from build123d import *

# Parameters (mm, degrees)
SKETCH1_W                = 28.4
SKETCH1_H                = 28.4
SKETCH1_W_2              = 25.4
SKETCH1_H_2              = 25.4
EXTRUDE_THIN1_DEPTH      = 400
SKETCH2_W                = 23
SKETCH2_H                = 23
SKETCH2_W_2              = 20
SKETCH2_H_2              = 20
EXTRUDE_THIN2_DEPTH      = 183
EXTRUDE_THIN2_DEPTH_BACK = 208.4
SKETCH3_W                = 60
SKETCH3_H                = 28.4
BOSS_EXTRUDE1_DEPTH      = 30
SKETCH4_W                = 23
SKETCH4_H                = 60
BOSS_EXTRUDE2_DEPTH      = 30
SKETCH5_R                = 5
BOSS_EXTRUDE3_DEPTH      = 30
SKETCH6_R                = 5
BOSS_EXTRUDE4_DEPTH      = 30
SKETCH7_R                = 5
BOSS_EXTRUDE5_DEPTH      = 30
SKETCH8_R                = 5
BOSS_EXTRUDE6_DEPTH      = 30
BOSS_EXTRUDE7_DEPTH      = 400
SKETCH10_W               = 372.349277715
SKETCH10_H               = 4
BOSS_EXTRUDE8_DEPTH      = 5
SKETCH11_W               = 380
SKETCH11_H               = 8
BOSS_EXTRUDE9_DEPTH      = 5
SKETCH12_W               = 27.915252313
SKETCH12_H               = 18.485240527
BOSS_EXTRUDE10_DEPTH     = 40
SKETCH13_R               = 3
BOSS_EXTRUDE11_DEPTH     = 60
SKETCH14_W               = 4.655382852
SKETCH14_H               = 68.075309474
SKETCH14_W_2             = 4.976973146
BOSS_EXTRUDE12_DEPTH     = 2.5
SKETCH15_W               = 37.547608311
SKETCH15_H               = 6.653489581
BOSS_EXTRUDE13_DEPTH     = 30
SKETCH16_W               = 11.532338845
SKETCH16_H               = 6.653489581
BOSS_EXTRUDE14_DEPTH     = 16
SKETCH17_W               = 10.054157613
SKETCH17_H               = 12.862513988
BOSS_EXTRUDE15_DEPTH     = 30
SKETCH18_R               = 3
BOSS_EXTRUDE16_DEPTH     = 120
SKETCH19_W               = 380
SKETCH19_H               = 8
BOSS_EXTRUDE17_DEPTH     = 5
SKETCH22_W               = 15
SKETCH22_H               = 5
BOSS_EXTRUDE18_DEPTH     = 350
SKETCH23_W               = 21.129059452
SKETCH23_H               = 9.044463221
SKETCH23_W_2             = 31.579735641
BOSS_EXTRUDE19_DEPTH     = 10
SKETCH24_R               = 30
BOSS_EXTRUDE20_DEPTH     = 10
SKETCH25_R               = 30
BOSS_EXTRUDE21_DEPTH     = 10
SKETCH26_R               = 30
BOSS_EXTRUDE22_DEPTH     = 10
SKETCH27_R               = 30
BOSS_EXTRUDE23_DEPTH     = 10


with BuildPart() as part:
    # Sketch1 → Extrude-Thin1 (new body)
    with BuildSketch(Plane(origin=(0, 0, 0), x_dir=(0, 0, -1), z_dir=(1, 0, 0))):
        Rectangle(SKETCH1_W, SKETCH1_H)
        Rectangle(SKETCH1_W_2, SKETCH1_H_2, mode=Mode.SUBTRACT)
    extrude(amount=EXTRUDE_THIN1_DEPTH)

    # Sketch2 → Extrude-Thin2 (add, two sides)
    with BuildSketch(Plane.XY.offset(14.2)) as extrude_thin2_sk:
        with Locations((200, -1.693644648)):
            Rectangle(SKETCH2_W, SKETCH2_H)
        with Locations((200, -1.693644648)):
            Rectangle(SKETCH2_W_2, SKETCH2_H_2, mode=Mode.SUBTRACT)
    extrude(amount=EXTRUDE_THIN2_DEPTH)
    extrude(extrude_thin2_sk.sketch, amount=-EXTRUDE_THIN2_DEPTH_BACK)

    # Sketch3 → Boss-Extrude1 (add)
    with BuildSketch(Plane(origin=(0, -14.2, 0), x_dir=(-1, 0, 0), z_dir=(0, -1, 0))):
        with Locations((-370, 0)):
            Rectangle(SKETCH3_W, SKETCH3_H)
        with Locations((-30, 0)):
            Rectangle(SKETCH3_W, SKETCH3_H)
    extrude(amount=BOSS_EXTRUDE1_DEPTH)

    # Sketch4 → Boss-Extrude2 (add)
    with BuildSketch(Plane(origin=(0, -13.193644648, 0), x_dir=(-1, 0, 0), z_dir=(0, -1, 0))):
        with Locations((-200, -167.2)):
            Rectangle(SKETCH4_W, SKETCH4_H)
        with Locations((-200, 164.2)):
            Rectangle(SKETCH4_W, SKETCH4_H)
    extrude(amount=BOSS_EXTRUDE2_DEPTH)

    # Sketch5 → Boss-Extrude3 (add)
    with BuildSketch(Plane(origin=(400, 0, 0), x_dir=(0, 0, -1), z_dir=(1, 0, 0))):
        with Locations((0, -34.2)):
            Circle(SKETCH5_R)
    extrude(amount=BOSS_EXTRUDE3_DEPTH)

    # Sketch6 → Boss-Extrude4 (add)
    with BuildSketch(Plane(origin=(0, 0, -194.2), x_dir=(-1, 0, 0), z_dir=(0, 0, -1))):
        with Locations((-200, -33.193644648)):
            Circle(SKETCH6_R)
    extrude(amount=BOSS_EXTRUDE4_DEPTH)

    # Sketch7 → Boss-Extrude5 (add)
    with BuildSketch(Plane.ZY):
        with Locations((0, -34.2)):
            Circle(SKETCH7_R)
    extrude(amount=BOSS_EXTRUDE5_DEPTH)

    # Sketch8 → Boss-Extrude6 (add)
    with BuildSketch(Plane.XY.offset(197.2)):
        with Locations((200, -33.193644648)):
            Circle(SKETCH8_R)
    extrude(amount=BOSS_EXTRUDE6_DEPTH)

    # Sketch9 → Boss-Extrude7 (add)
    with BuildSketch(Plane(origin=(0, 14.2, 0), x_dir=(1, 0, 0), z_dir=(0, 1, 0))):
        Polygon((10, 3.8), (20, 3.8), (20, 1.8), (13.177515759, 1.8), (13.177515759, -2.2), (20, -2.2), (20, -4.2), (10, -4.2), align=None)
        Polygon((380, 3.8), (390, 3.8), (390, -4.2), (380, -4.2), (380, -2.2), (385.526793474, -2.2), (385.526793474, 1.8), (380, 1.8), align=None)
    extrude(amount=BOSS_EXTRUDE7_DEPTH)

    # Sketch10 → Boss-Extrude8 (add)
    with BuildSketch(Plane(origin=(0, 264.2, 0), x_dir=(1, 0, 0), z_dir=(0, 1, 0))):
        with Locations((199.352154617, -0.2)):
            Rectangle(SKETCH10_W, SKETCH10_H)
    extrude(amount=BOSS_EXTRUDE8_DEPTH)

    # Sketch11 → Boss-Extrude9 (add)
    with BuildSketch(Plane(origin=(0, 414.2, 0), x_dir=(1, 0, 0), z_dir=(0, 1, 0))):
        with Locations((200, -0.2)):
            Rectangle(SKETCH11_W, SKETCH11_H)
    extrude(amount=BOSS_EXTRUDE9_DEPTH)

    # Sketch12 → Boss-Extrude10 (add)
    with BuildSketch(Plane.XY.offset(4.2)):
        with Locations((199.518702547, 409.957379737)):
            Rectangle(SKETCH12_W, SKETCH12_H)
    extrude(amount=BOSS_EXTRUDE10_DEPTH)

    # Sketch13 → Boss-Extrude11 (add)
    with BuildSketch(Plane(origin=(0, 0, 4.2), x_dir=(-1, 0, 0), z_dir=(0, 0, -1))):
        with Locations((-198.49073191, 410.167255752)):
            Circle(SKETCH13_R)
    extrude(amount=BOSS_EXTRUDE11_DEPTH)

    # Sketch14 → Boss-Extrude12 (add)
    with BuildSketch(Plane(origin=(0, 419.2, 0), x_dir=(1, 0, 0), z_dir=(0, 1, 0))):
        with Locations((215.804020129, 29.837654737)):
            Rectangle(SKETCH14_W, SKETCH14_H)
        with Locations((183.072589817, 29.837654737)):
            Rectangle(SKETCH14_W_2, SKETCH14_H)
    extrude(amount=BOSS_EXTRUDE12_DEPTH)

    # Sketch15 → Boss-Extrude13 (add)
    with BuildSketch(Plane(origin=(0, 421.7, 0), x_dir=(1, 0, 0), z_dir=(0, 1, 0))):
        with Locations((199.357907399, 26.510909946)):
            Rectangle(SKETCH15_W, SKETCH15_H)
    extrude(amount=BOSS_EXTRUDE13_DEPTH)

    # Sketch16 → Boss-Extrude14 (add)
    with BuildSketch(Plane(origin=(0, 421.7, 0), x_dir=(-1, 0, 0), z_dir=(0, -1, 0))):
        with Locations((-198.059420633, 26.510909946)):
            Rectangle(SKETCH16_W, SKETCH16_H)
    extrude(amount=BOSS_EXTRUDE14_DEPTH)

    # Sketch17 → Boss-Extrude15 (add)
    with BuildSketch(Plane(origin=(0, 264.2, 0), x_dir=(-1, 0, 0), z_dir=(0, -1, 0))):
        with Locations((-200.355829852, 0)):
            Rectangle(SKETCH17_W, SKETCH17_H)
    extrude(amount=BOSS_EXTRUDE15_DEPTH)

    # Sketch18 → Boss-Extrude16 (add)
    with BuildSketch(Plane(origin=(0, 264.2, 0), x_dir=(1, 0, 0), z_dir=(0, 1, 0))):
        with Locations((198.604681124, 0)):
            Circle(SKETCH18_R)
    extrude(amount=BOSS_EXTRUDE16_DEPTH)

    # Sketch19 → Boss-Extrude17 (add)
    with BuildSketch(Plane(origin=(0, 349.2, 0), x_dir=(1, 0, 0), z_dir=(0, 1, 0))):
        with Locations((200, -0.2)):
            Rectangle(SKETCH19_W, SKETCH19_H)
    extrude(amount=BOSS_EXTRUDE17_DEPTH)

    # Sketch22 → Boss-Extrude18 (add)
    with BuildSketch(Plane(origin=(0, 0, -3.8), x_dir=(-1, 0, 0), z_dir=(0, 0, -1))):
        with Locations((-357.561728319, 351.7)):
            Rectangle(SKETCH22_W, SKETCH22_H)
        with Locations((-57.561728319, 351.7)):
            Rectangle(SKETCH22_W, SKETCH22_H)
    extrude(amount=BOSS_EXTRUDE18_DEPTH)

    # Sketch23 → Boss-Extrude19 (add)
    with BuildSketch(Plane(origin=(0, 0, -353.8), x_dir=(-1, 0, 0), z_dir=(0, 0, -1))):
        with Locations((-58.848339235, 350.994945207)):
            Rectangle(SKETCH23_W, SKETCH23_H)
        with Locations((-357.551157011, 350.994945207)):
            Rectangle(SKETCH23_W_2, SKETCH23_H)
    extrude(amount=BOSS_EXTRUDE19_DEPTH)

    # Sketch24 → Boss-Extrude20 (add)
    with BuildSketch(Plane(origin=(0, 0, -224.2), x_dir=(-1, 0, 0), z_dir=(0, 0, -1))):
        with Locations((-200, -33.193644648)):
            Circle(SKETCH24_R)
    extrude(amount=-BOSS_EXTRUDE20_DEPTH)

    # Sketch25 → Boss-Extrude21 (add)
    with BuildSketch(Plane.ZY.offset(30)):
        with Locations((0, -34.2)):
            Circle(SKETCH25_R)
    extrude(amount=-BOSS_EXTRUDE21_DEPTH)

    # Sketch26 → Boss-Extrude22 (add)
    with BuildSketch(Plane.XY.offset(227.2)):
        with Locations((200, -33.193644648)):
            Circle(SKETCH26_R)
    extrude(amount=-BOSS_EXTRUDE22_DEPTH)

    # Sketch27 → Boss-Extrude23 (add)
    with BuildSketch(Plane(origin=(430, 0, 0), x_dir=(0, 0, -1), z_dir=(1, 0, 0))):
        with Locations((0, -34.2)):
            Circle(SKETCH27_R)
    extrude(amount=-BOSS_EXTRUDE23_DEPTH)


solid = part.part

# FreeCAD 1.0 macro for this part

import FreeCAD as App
import Part
import Sketcher
from FreeCAD import Vector


def add_polygon(sketch, points):
    """Adds a closed chain of lines whose ends are joined by coincident constraints."""
    first, n = sketch.GeometryCount, len(points)
    for a, b in zip(points, points[1:] + points[:1]):
        sketch.addGeometry(Part.LineSegment(App.Vector(*a, 0), App.Vector(*b, 0)), False)
    for i in range(n):
        sketch.addConstraint(Sketcher.Constraint("Coincident", first + i, 2, first + (i + 1) % n, 1))

doc = App.newDocument("Part")
body = doc.addObject("PartDesign::Body", "Body")

# Sketch on YZ plane
sketch1 = doc.addObject("Sketcher::SketchObject", "Sketch")
body.addObject(sketch1)
sketch1.AttachmentSupport = (doc.YZ_Plane, [""])
sketch1.MapMode = "FlatFace"
add_polygon(sketch1, [(14, 14), (-14, 14), (-14, -14), (14, -14)])  # lines 0-3
add_polygon(sketch1, [(-13, -13), (-13, 13), (13, 13), (13, -13)])  # lines 4-7
sketch1.addConstraint(Sketcher.Constraint("Horizontal", 0))
sketch1.addConstraint(Sketcher.Constraint("Vertical", 1))
sketch1.addConstraint(Sketcher.Constraint("Horizontal", 2))
sketch1.addConstraint(Sketcher.Constraint("Vertical", 3))
sketch1.addConstraint(Sketcher.Constraint("Vertical", 4))
sketch1.addConstraint(Sketcher.Constraint("Horizontal", 5))
sketch1.addConstraint(Sketcher.Constraint("Vertical", 6))
sketch1.addConstraint(Sketcher.Constraint("Horizontal", 7))
sketch1.addConstraint(Sketcher.Constraint("Symmetric", 0, 2, 2, 2, -1, 1))
sketch1.addConstraint(Sketcher.Constraint("Symmetric", 4, 2, 6, 2, -1, 1))
sketch1.addConstraint(Sketcher.Constraint("Equal", 2, 1))
sketch1.addConstraint(Sketcher.Constraint("Equal", 7, 4))
sketch1.addConstraint(Sketcher.Constraint("DistanceX", 0, 2, 0, 1, 28.4))
sketch1.addConstraint(Sketcher.Constraint("DistanceX", 5, 1, 5, 2, 25.4))
pad1 = doc.addObject("PartDesign::Pad", "Pad")
body.addObject(pad1)
pad1.Profile = sketch1
pad1.Length = 400

# Sketch on XY plane
sketch2 = doc.addObject("Sketcher::SketchObject", "Sketch001")
body.addObject(sketch2)
sketch2.AttachmentSupport = (doc.XY_Plane, [""])
sketch2.MapMode = "FlatFace"
sketch2.AttachmentOffset = App.Placement(Vector(0, 0, 14.2), App.Rotation())
add_polygon(sketch2, [(188, 10), (188, -13), (212, -13), (212, 10)])  # lines 0-3
add_polygon(sketch2, [(210, -12), (190, -12), (190, 8), (210, 8)])  # lines 4-7
sketch2.addConstraint(Sketcher.Constraint("Vertical", 0))
sketch2.addConstraint(Sketcher.Constraint("Horizontal", 1))
sketch2.addConstraint(Sketcher.Constraint("Vertical", 2))
sketch2.addConstraint(Sketcher.Constraint("Horizontal", 3))
sketch2.addConstraint(Sketcher.Constraint("Horizontal", 4))
sketch2.addConstraint(Sketcher.Constraint("Vertical", 5))
sketch2.addConstraint(Sketcher.Constraint("Horizontal", 6))
sketch2.addConstraint(Sketcher.Constraint("Vertical", 7))
sketch2.addConstraint(Sketcher.Constraint("Equal", 3, 0))
sketch2.addConstraint(Sketcher.Constraint("Equal", 6, 5))
sketch2.addConstraint(Sketcher.Constraint("DistanceX", 1, 1, 1, 2, 23.0))
sketch2.addConstraint(Sketcher.Constraint("DistanceX", 4, 2, 4, 1, 20.0))
sketch2.addConstraint(Sketcher.Constraint("DistanceX", -1, 1, 4, 2, 190.0))
sketch2.addConstraint(Sketcher.Constraint("DistanceX", -1, 1, 0, 2, 188.5))
sketch2.addConstraint(Sketcher.Constraint("DistanceY", 0, 2, 4, 2, 1.5))
sketch2.addConstraint(Sketcher.Constraint("DistanceY", 0, 2, -1, 1, 13.193645))
pad2 = doc.addObject("PartDesign::Pad", "Pad001")
body.addObject(pad2)
pad2.Profile = sketch2
pad2.Type = "TwoLengths"
pad2.Length = 183
pad2.Length2 = 208.4

# Sketch on XZ plane
sketch3 = doc.addObject("Sketcher::SketchObject", "Sketch002")
body.addObject(sketch3)
sketch3.AttachmentSupport = (doc.XZ_Plane, [""])
sketch3.MapMode = "FlatFace"
sketch3.AttachmentOffset = App.Placement(Vector(0, 0, 14.2), App.Rotation())
add_polygon(sketch3, [(400, -14), (400, 14), (340, 14), (340, -14)])  # lines 0-3
add_polygon(sketch3, [(60, -14), (60, 14), (0, 14), (0, -14)])  # lines 4-7
sketch3.addConstraint(Sketcher.Constraint("Vertical", 0))
sketch3.addConstraint(Sketcher.Constraint("Horizontal", 1))
sketch3.addConstraint(Sketcher.Constraint("Vertical", 2))
sketch3.addConstraint(Sketcher.Constraint("Horizontal", 3))
sketch3.addConstraint(Sketcher.Constraint("Vertical", 4))
sketch3.addConstraint(Sketcher.Constraint("Horizontal", 5))
sketch3.addConstraint(Sketcher.Constraint("Vertical", 6))
sketch3.addConstraint(Sketcher.Constraint("Horizontal", 7))
sketch3.addConstraint(Sketcher.Constraint("Symmetric", 5, 2, 6, 2, -1, 1))
sketch3.addConstraint(Sketcher.Constraint("Horizontal", 1, 2, 4, 2))
sketch3.addConstraint(Sketcher.Constraint("Horizontal", 3, 2, 6, 2))
sketch3.addConstraint(Sketcher.Constraint("Equal", 3, 5))
sketch3.addConstraint(Sketcher.Constraint("DistanceX", 1, 2, 1, 1, 60.0))
sketch3.addConstraint(Sketcher.Constraint("DistanceY", 0, 1, 0, 2, 28.4))
sketch3.addConstraint(Sketcher.Constraint("DistanceX", -1, 1, 0, 2, 400.0))
pad3 = doc.addObject("PartDesign::Pad", "Pad002")
body.addObject(pad3)
pad3.Profile = sketch3
pad3.Length = 30

# Sketch on XZ plane
sketch4 = doc.addObject("Sketcher::SketchObject", "Sketch003")
body.addObject(sketch4)
sketch4.AttachmentSupport = (doc.XZ_Plane, [""])
sketch4.MapMode = "FlatFace"
sketch4.AttachmentOffset = App.Placement(Vector(0, 0, 13.193645), App.Rotation())
add_polygon(sketch4, [(212, 137), (212, 197), (188, 197), (188, 137)])  # lines 0-3
add_polygon(sketch4, [(212, -194), (212, -134), (188, -134), (188, -194)])  # lines 4-7
sketch4.addConstraint(Sketcher.Constraint("Vertical", 0))
sketch4.addConstraint(Sketcher.Constraint("Horizontal", 1))
sketch4.addConstraint(Sketcher.Constraint("Vertical", 2))
sketch4.addConstraint(Sketcher.Constraint("Horizontal", 3))
sketch4.addConstraint(Sketcher.Constraint("Vertical", 4))
sketch4.addConstraint(Sketcher.Constraint("Horizontal", 5))
sketch4.addConstraint(Sketcher.Constraint("Vertical", 6))
sketch4.addConstraint(Sketcher.Constraint("Horizontal", 7))
sketch4.addConstraint(Sketcher.Constraint("Vertical", 3, 2, 4, 2))
sketch4.addConstraint(Sketcher.Constraint("Vertical", 2, 2, 5, 2))
sketch4.addConstraint(Sketcher.Constraint("Equal", 2, 4))
sketch4.addConstraint(Sketcher.Constraint("DistanceX", 1, 2, 1, 1, 23.0))
sketch4.addConstraint(Sketcher.Constraint("DistanceY", 0, 1, 0, 2, 60.0))
sketch4.addConstraint(Sketcher.Constraint("DistanceX", -1, 1, 0, 2, 211.5))
sketch4.addConstraint(Sketcher.Constraint("DistanceY", -1, 1, 0, 2, 197.2))
sketch4.addConstraint(Sketcher.Constraint("DistanceY", 4, 2, -1, 1, 134.2))
pad4 = doc.addObject("PartDesign::Pad", "Pad003")
body.addObject(pad4)
pad4.Profile = sketch4
pad4.Length = 30

# Sketch on YZ plane
sketch5 = doc.addObject("Sketcher::SketchObject", "Sketch004")
body.addObject(sketch5)
sketch5.AttachmentSupport = (doc.YZ_Plane, [""])
sketch5.MapMode = "FlatFace"
sketch5.AttachmentOffset = App.Placement(Vector(0, 0, 400), App.Rotation())
sketch5.addGeometry(Part.Circle(Vector(-34, 0, 0), Vector(0, 0, 1), 5), False)
sketch5.addConstraint(Sketcher.Constraint("PointOnObject", 0, 3, -1))
sketch5.addConstraint(Sketcher.Constraint("Diameter", 0, 10.0))
sketch5.addConstraint(Sketcher.Constraint("DistanceX", 0, 3, -1, 1, 34.2))
pad5 = doc.addObject("PartDesign::Pad", "Pad004")
body.addObject(pad5)
pad5.Profile = sketch5
pad5.Length = 30

# Sketch on XY plane
sketch6 = doc.addObject("Sketcher::SketchObject", "Sketch005")
body.addObject(sketch6)
sketch6.AttachmentSupport = (doc.XY_Plane, [""])
sketch6.MapMode = "FlatFace"
sketch6.AttachmentOffset = App.Placement(Vector(0, 0, -194.2), App.Rotation())
sketch6.addGeometry(Part.Circle(Vector(200, -33, 0), Vector(0, 0, 1), 5), False)
sketch6.addConstraint(Sketcher.Constraint("Diameter", 0, 10.0))
sketch6.addConstraint(Sketcher.Constraint("DistanceX", -1, 1, 0, 3, 200.0))
sketch6.addConstraint(Sketcher.Constraint("DistanceY", 0, 3, -1, 1, 33.193645))
pad6 = doc.addObject("PartDesign::Pad", "Pad005")
body.addObject(pad6)
pad6.Profile = sketch6
pad6.Length = 30
pad6.Reversed = True

# Sketch on YZ plane
sketch7 = doc.addObject("Sketcher::SketchObject", "Sketch006")
body.addObject(sketch7)
sketch7.AttachmentSupport = (doc.YZ_Plane, [""])
sketch7.MapMode = "FlatFace"
sketch7.addGeometry(Part.Circle(Vector(-34, 0, 0), Vector(0, 0, 1), 5), False)
sketch7.addConstraint(Sketcher.Constraint("PointOnObject", 0, 3, -1))
sketch7.addConstraint(Sketcher.Constraint("Diameter", 0, 10.0))
sketch7.addConstraint(Sketcher.Constraint("DistanceX", 0, 3, -1, 1, 34.2))
pad7 = doc.addObject("PartDesign::Pad", "Pad006")
body.addObject(pad7)
pad7.Profile = sketch7
pad7.Length = 30
pad7.Reversed = True

# Sketch on XY plane
sketch8 = doc.addObject("Sketcher::SketchObject", "Sketch007")
body.addObject(sketch8)
sketch8.AttachmentSupport = (doc.XY_Plane, [""])
sketch8.MapMode = "FlatFace"
sketch8.AttachmentOffset = App.Placement(Vector(0, 0, 197.2), App.Rotation())
sketch8.addGeometry(Part.Circle(Vector(200, -33, 0), Vector(0, 0, 1), 5), False)
sketch8.addConstraint(Sketcher.Constraint("Diameter", 0, 10.0))
sketch8.addConstraint(Sketcher.Constraint("DistanceX", -1, 1, 0, 3, 200.0))
sketch8.addConstraint(Sketcher.Constraint("DistanceY", 0, 3, -1, 1, 33.193645))
pad8 = doc.addObject("PartDesign::Pad", "Pad007")
body.addObject(pad8)
pad8.Profile = sketch8
pad8.Length = 30

# Sketch on XZ plane
sketch9 = doc.addObject("Sketcher::SketchObject", "Sketch008")
body.addObject(sketch9)
sketch9.AttachmentSupport = (doc.XZ_Plane, [""])
sketch9.MapMode = "FlatFace"
sketch9.AttachmentOffset = App.Placement(Vector(0, 0, -14.2), App.Rotation())
add_polygon(sketch9, [(20, -3.8), (10, -3.8), (10, 4.2), (20, 4.2), (20, 2.2), (13.2, 2.2), (13.2, -1.8), (20, -1.8)])  # lines 0-7
add_polygon(sketch9, [(390, -3.8), (380, -3.8), (380, -1.8), (385.5, -1.8), (385.5, 2.2), (380, 2.2), (380, 4.2), (390, 4.2)])  # lines 8-15
sketch9.addConstraint(Sketcher.Constraint("Horizontal", 0))
sketch9.addConstraint(Sketcher.Constraint("Vertical", 1))
sketch9.addConstraint(Sketcher.Constraint("Horizontal", 2))
sketch9.addConstraint(Sketcher.Constraint("Vertical", 3))
sketch9.addConstraint(Sketcher.Constraint("Horizontal", 4))
sketch9.addConstraint(Sketcher.Constraint("Vertical", 5))
sketch9.addConstraint(Sketcher.Constraint("Horizontal", 6))
sketch9.addConstraint(Sketcher.Constraint("Vertical", 7))
sketch9.addConstraint(Sketcher.Constraint("Horizontal", 8))
sketch9.addConstraint(Sketcher.Constraint("Vertical", 9))
sketch9.addConstraint(Sketcher.Constraint("Horizontal", 10))
sketch9.addConstraint(Sketcher.Constraint("Vertical", 11))
sketch9.addConstraint(Sketcher.Constraint("Horizontal", 12))
sketch9.addConstraint(Sketcher.Constraint("Vertical", 13))
sketch9.addConstraint(Sketcher.Constraint("Horizontal", 14))
sketch9.addConstraint(Sketcher.Constraint("Vertical", 15))
sketch9.addConstraint(Sketcher.Constraint("Horizontal", 7, 2, 8, 2))
sketch9.addConstraint(Sketcher.Constraint("Horizontal", 6, 2, 9, 2))
sketch9.addConstraint(Sketcher.Constraint("Horizontal", 4, 2, 11, 2))
sketch9.addConstraint(Sketcher.Constraint("Horizontal", 2, 2, 13, 2))
sketch9.addConstraint(Sketcher.Constraint("Vertical", 3, 2, 6, 2))
sketch9.addConstraint(Sketcher.Constraint("Vertical", 9, 2, 12, 2))
sketch9.addConstraint(Sketcher.Constraint("Equal", 2, 8))
sketch9.addConstraint(Sketcher.Constraint("Equal", 3, 7))
sketch9.addConstraint(Sketcher.Constraint("DistanceX", 0, 2, 0, 1, 10.0))
sketch9.addConstraint(Sketcher.Constraint("DistanceY", 1, 1, 1, 2, 8.0))
sketch9.addConstraint(Sketcher.Constraint("DistanceY", 3, 2, 3, 1, 2.0))
sketch9.addConstraint(Sketcher.Constraint("DistanceX", -1, 1, 0, 2, 10.0))
sketch9.addConstraint(Sketcher.Constraint("DistanceX", -1, 1, 8, 2, 380.0))
sketch9.addConstraint(Sketcher.Constraint("DistanceY", 0, 2, -1, 1, 3.8))
sketch9.addConstraint(Sketcher.Constraint("DistanceX", 4, 2, 4, 1, 6.822484))
sketch9.addConstraint(Sketcher.Constraint("DistanceX", 10, 1, 10, 2, 5.526793))
pad9 = doc.addObject("PartDesign::Pad", "Pad008")
body.addObject(pad9)
pad9.Profile = sketch9
pad9.Length = 400
pad9.Reversed = True

# Sketch on XZ plane
sketch10 = doc.addObject("Sketcher::SketchObject", "Sketch009")
body.addObject(sketch10)
sketch10.AttachmentSupport = (doc.XZ_Plane, [""])
sketch10.MapMode = "FlatFace"
sketch10.AttachmentOffset = App.Placement(Vector(0, 0, -264.2), App.Rotation())
add_polygon(sketch10, [(13.2, -1.8), (13.2, 2.2), (385.5, 2.2), (385.5, -1.8)])  # lines 0-3
sketch10.addConstraint(Sketcher.Constraint("Vertical", 0))
sketch10.addConstraint(Sketcher.Constraint("Horizontal", 1))
sketch10.addConstraint(Sketcher.Constraint("Vertical", 2))
sketch10.addConstraint(Sketcher.Constraint("Horizontal", 3))
sketch10.addConstraint(Sketcher.Constraint("DistanceY", 0, 1, 0, 2, 4.0))
sketch10.addConstraint(Sketcher.Constraint("DistanceY", -1, 1, 0, 2, 2.2))
sketch10.addConstraint(Sketcher.Constraint("DistanceX", 1, 1, 1, 2, 372.349278))
sketch10.addConstraint(Sketcher.Constraint("DistanceX", -1, 1, 0, 2, 13.177516))
pad10 = doc.addObject("PartDesign::Pad", "Pad009")
body.addObject(pad10)
pad10.Profile = sketch10
pad10.Length = 5
pad10.Reversed = True

# Sketch on XZ plane
sketch11 = doc.addObject("Sketcher::SketchObject", "Sketch010")
body.addObject(sketch11)
sketch11.AttachmentSupport = (doc.XZ_Plane, [""])
sketch11.MapMode = "FlatFace"
sketch11.AttachmentOffset = App.Placement(Vector(0, 0, -414.2), App.Rotation())
add_polygon(sketch11, [(10, -4), (10, 4), (390, 4), (390, -4)])  # lines 0-3
sketch11.addConstraint(Sketcher.Constraint("Vertical", 0))
sketch11.addConstraint(Sketcher.Constraint("Horizontal", 1))
sketch11.addConstraint(Sketcher.Constraint("Vertical", 2))
sketch11.addConstraint(Sketcher.Constraint("Horizontal", 3))
sketch11.addConstraint(Sketcher.Constraint("DistanceX", 1, 1, 1, 2, 380.0))
sketch11.addConstraint(Sketcher.Constraint("DistanceY", 0, 1, 0, 2, 8.0))
sketch11.addConstraint(Sketcher.Constraint("DistanceX", -1, 1, 0, 2, 10.0))
sketch11.addConstraint(Sketcher.Constraint("DistanceY", -1, 1, 0, 2, 4.2))
pad11 = doc.addObject("PartDesign::Pad", "Pad010")
body.addObject(pad11)
pad11.Profile = sketch11
pad11.Length = 5
pad11.Reversed = True

# Sketch on XY plane
sketch12 = doc.addObject("Sketcher::SketchObject", "Sketch011")
body.addObject(sketch12)
sketch12.AttachmentSupport = (doc.XY_Plane, [""])
sketch12.MapMode = "FlatFace"
sketch12.AttachmentOffset = App.Placement(Vector(0, 0, 4.2), App.Rotation())
add_polygon(sketch12, [(186, 419), (186, 401), (213, 401), (213, 419)])  # lines 0-3
sketch12.addConstraint(Sketcher.Constraint("Vertical", 0))
sketch12.addConstraint(Sketcher.Constraint("Horizontal", 1))
sketch12.addConstraint(Sketcher.Constraint("Vertical", 2))
sketch12.addConstraint(Sketcher.Constraint("Horizontal", 3))
sketch12.addConstraint(Sketcher.Constraint("DistanceY", -1, 1, 2, 2, 419.2))
sketch12.addConstraint(Sketcher.Constraint("DistanceY", 0, 2, 0, 1, 18.485241))
sketch12.addConstraint(Sketcher.Constraint("DistanceX", 1, 1, 1, 2, 27.915252))
sketch12.addConstraint(Sketcher.Constraint("DistanceX", -1, 1, 1, 2, 213.476329))
pad12 = doc.addObject("PartDesign::Pad", "Pad011")
body.addObject(pad12)
pad12.Profile = sketch12
pad12.Length = 40

# Sketch on XY plane
sketch13 = doc.addObject("Sketcher::SketchObject", "Sketch012")
body.addObject(sketch13)
sketch13.AttachmentSupport = (doc.XY_Plane, [""])
sketch13.MapMode = "FlatFace"
sketch13.AttachmentOffset = App.Placement(Vector(0, 0, 4.2), App.Rotation())
sketch13.addGeometry(Part.Circle(Vector(198.5, 410.2, 0), Vector(0, 0, 1), 3), False)
sketch13.addConstraint(Sketcher.Constraint("Diameter", 0, 6.0))
sketch13.addConstraint(Sketcher.Constraint("DistanceX", -1, 1, 0, 3, 198.490732))
sketch13.addConstraint(Sketcher.Constraint("DistanceY", -1, 1, 0, 3, 410.167256))
pad13 = doc.addObject("PartDesign::Pad", "Pad012")
body.addObject(pad13)
pad13.Profile = sketch13
pad13.Length = 60
pad13.Reversed = True

# Sketch on XZ plane
sketch14 = doc.addObject("Sketcher::SketchObject", "Sketch013")
body.addObject(sketch14)
sketch14.AttachmentSupport = (doc.XZ_Plane, [""])
sketch14.MapMode = "FlatFace"
sketch14.AttachmentOffset = App.Placement(Vector(0, 0, -419.2), App.Rotation())
add_polygon(sketch14, [(213.5, -63.9), (213.5, 4.2), (218.1, 4.2), (218.1, -63.9)])  # lines 0-3
add_polygon(sketch14, [(180.6, -63.9), (180.6, 4.2), (185.6, 4.2), (185.6, -63.9)])  # lines 4-7
sketch14.addConstraint(Sketcher.Constraint("Vertical", 0))
sketch14.addConstraint(Sketcher.Constraint("Horizontal", 1))
sketch14.addConstraint(Sketcher.Constraint("Vertical", 2))
sketch14.addConstraint(Sketcher.Constraint("Horizontal", 3))
sketch14.addConstraint(Sketcher.Constraint("Vertical", 4))
sketch14.addConstraint(Sketcher.Constraint("Horizontal", 5))
sketch14.addConstraint(Sketcher.Constraint("Vertical", 6))
sketch14.addConstraint(Sketcher.Constraint("Horizontal", 7))
sketch14.addConstraint(Sketcher.Constraint("Horizontal", 1, 2, 4, 2))
sketch14.addConstraint(Sketcher.Constraint("Horizontal", 3, 2, 6, 2))
sketch14.addConstraint(Sketcher.Constraint("DistanceY", -1, 1, 0, 2, 4.2))
sketch14.addConstraint(Sketcher.Constraint("DistanceY", 0, 1, 0, 2, 68.075309))
sketch14.addConstraint(Sketcher.Constraint("DistanceX", 1, 1, 1, 2, 4.655383))
sketch14.addConstraint(Sketcher.Constraint("DistanceX", 5, 1, 5, 2, 4.976973))
sketch14.addConstraint(Sketcher.Constraint("DistanceX", -1, 1, 0, 2, 213.476329))
sketch14.addConstraint(Sketcher.Constraint("DistanceX", 4, 2, 1, 2, 37.547608))
pad14 = doc.addObject("PartDesign::Pad", "Pad013")
body.addObject(pad14)
pad14.Profile = sketch14
pad14.Length = 2.5
pad14.Reversed = True

# Sketch on XZ plane
sketch15 = doc.addObject("Sketcher::SketchObject", "Sketch014")
body.addObject(sketch15)
sketch15.AttachmentSupport = (doc.XZ_Plane, [""])
sketch15.MapMode = "FlatFace"
sketch15.AttachmentOffset = App.Placement(Vector(0, 0, -421.7), App.Rotation())
add_polygon(sketch15, [(181, -30), (181, -23), (218, -23), (218, -30)])  # lines 0-3
sketch15.addConstraint(Sketcher.Constraint("Vertical", 0))
sketch15.addConstraint(Sketcher.Constraint("Horizontal", 1))
sketch15.addConstraint(Sketcher.Constraint("Vertical", 2))
sketch15.addConstraint(Sketcher.Constraint("Horizontal", 3))
sketch15.addConstraint(Sketcher.Constraint("DistanceX", 1, 1, 1, 2, 37.547608))
sketch15.addConstraint(Sketcher.Constraint("DistanceY", 0, 1, 0, 2, 6.65349))
sketch15.addConstraint(Sketcher.Constraint("DistanceX", -1, 1, 1, 2, 218.131712))
sketch15.addConstraint(Sketcher.Constraint("DistanceY", 0, 2, -1, 1, 23.184165))
pad15 = doc.addObject("PartDesign::Pad", "Pad014")
body.addObject(pad15)
pad15.Profile = sketch15
pad15.Length = 30
pad15.Reversed = True

# Sketch on XZ plane
sketch16 = doc.addObject("Sketcher::SketchObject", "Sketch015")
body.addObject(sketch16)
sketch16.AttachmentSupport = (doc.XZ_Plane, [""])
sketch16.MapMode = "FlatFace"
sketch16.AttachmentOffset = App.Placement(Vector(0, 0, -421.7), App.Rotation())
add_polygon(sketch16, [(204, -30), (204, -23), (192, -23), (192, -30)])  # lines 0-3
sketch16.addConstraint(Sketcher.Constraint("Vertical", 0))
sketch16.addConstraint(Sketcher.Constraint("Horizontal", 1))
sketch16.addConstraint(Sketcher.Constraint("Vertical", 2))
sketch16.addConstraint(Sketcher.Constraint("Horizontal", 3))
sketch16.addConstraint(Sketcher.Constraint("DistanceX", 1, 2, 1, 1, 11.532339))
sketch16.addConstraint(Sketcher.Constraint("DistanceY", 0, 1, 0, 2, 6.65349))
sketch16.addConstraint(Sketcher.Constraint("DistanceX", -1, 1, 0, 2, 203.82559))
sketch16.addConstraint(Sketcher.Constraint("DistanceY", 0, 2, -1, 1, 23.184165))
pad16 = doc.addObject("PartDesign::Pad", "Pad015")
body.addObject(pad16)
pad16.Profile = sketch16
pad16.Length = 16

# Sketch on XZ plane
sketch17 = doc.addObject("Sketcher::SketchObject", "Sketch016")
body.addObject(sketch17)
sketch17.AttachmentSupport = (doc.XZ_Plane, [""])
sketch17.MapMode = "FlatFace"
sketch17.AttachmentOffset = App.Placement(Vector(0, 0, -264.2), App.Rotation())
add_polygon(sketch17, [(205, -6), (205, 6), (195, 6), (195, -6)])  # lines 0-3
sketch17.addConstraint(Sketcher.Constraint("Vertical", 0))
sketch17.addConstraint(Sketcher.Constraint("Horizontal", 1))
sketch17.addConstraint(Sketcher.Constraint("Vertical", 2))
sketch17.addConstraint(Sketcher.Constraint("Horizontal", 3))
sketch17.addConstraint(Sketcher.Constraint("DistanceX", 1, 2, 1, 1, 10.054158))
sketch17.addConstraint(Sketcher.Constraint("DistanceY", 0, 1, 0, 2, 12.862514))
sketch17.addConstraint(Sketcher.Constraint("DistanceX", -1, 1, 0, 2, 205.382909))
sketch17.addConstraint(Sketcher.Constraint("DistanceY", -1, 1, 0, 2, 6.431257))
pad17 = doc.addObject("PartDesign::Pad", "Pad016")
body.addObject(pad17)
pad17.Profile = sketch17
pad17.Length = 30

# Sketch on XZ plane
sketch18 = doc.addObject("Sketcher::SketchObject", "Sketch017")
body.addObject(sketch18)
sketch18.AttachmentSupport = (doc.XZ_Plane, [""])
sketch18.MapMode = "FlatFace"
sketch18.AttachmentOffset = App.Placement(Vector(0, 0, -264.2), App.Rotation())
sketch18.addGeometry(Part.Circle(Vector(198.6, 0, 0), Vector(0, 0, 1), 3), False)
sketch18.addConstraint(Sketcher.Constraint("PointOnObject", 0, 3, -1))
sketch18.addConstraint(Sketcher.Constraint("Diameter", 0, 6.0))
sketch18.addConstraint(Sketcher.Constraint("DistanceX", -1, 1, 0, 3, 198.604681))
pad18 = doc.addObject("PartDesign::Pad", "Pad017")
body.addObject(pad18)
pad18.Profile = sketch18
pad18.Length = 120
pad18.Reversed = True

# Sketch on XZ plane
sketch19 = doc.addObject("Sketcher::SketchObject", "Sketch018")
body.addObject(sketch19)
sketch19.AttachmentSupport = (doc.XZ_Plane, [""])
sketch19.MapMode = "FlatFace"
sketch19.AttachmentOffset = App.Placement(Vector(0, 0, -349.2), App.Rotation())
add_polygon(sketch19, [(10, -4), (10, 4), (390, 4), (390, -4)])  # lines 0-3
sketch19.addConstraint(Sketcher.Constraint("Vertical", 0))
sketch19.addConstraint(Sketcher.Constraint("Horizontal", 1))
sketch19.addConstraint(Sketcher.Constraint("Vertical", 2))
sketch19.addConstraint(Sketcher.Constraint("Horizontal", 3))
sketch19.addConstraint(Sketcher.Constraint("DistanceX", 1, 1, 1, 2, 380.0))
sketch19.addConstraint(Sketcher.Constraint("DistanceY", 0, 1, 0, 2, 8.0))
sketch19.addConstraint(Sketcher.Constraint("DistanceX", -1, 1, 0, 2, 10.0))
sketch19.addConstraint(Sketcher.Constraint("DistanceY", -1, 1, 0, 2, 4.2))
pad19 = doc.addObject("PartDesign::Pad", "Pad018")
body.addObject(pad19)
pad19.Profile = sketch19
pad19.Length = 5
pad19.Reversed = True

# Sketch on XY plane
sketch20 = doc.addObject("Sketcher::SketchObject", "Sketch019")
body.addObject(sketch20)
sketch20.AttachmentSupport = (doc.XY_Plane, [""])
sketch20.MapMode = "FlatFace"
sketch20.AttachmentOffset = App.Placement(Vector(0, 0, -3.8), App.Rotation())
add_polygon(sketch20, [(365, 354), (365, 349), (350, 349), (350, 354)])  # lines 0-3
add_polygon(sketch20, [(65, 354), (65, 349), (50, 349), (50, 354)])  # lines 4-7
sketch20.addConstraint(Sketcher.Constraint("Vertical", 0))
sketch20.addConstraint(Sketcher.Constraint("Horizontal", 1))
sketch20.addConstraint(Sketcher.Constraint("Vertical", 2))
sketch20.addConstraint(Sketcher.Constraint("Horizontal", 3))
sketch20.addConstraint(Sketcher.Constraint("Vertical", 4))
sketch20.addConstraint(Sketcher.Constraint("Horizontal", 5))
sketch20.addConstraint(Sketcher.Constraint("Vertical", 6))
sketch20.addConstraint(Sketcher.Constraint("Horizontal", 7))
sketch20.addConstraint(Sketcher.Constraint("Horizontal", 1, 2, 4, 2))
sketch20.addConstraint(Sketcher.Constraint("Horizontal", 3, 2, 6, 2))
sketch20.addConstraint(Sketcher.Constraint("Equal", 3, 5))
sketch20.addConstraint(Sketcher.Constraint("DistanceX", 1, 2, 1, 1, 15.0))
sketch20.addConstraint(Sketcher.Constraint("DistanceY", 0, 2, 0, 1, 5.0))
sketch20.addConstraint(Sketcher.Constraint("DistanceX", 4, 2, 1, 2, 285.0))
sketch20.addConstraint(Sketcher.Constraint("DistanceY", -1, 1, 0, 2, 349.2))
sketch20.addConstraint(Sketcher.Constraint("DistanceX", -1, 1, 0, 2, 365.061728))
pad20 = doc.addObject("PartDesign::Pad", "Pad019")
body.addObject(pad20)
pad20.Profile = sketch20
pad20.Length = 350
pad20.Reversed = True

# Sketch on XY plane
sketch21 = doc.addObject("Sketcher::SketchObject", "Sketch020")
body.addObject(sketch21)
sketch21.AttachmentSupport = (doc.XY_Plane, [""])
sketch21.MapMode = "FlatFace"
sketch21.AttachmentOffset = App.Placement(Vector(0, 0, -353.8), App.Rotation())
add_polygon(sketch21, [(69, 356), (69, 346), (48, 346), (48, 356)])  # lines 0-3
add_polygon(sketch21, [(373, 356), (373, 346), (342, 346), (342, 356)])  # lines 4-7
sketch21.addConstraint(Sketcher.Constraint("Vertical", 0))
sketch21.addConstraint(Sketcher.Constraint("Horizontal", 1))
sketch21.addConstraint(Sketcher.Constraint("Vertical", 2))
sketch21.addConstraint(Sketcher.Constraint("Horizontal", 3))
sketch21.addConstraint(Sketcher.Constraint("Vertical", 4))
sketch21.addConstraint(Sketcher.Constraint("Horizontal", 5))
sketch21.addConstraint(Sketcher.Constraint("Vertical", 6))
sketch21.addConstraint(Sketcher.Constraint("Horizontal", 7))
sketch21.addConstraint(Sketcher.Constraint("Horizontal", 1, 2, 4, 2))
sketch21.addConstraint(Sketcher.Constraint("Horizontal", 3, 2, 6, 2))
sketch21.addConstraint(Sketcher.Constraint("DistanceX", 1, 2, 1, 1, 21.129059))
sketch21.addConstraint(Sketcher.Constraint("DistanceX", 5, 2, 5, 1, 31.579736))
sketch21.addConstraint(Sketcher.Constraint("DistanceY", 0, 2, 0, 1, 9.044463))
sketch21.addConstraint(Sketcher.Constraint("DistanceX", -1, 1, 0, 2, 69.412869))
sketch21.addConstraint(Sketcher.Constraint("DistanceX", -1, 1, 5, 2, 341.761289))
sketch21.addConstraint(Sketcher.Constraint("DistanceY", -1, 1, 0, 2, 346.472714))
pad21 = doc.addObject("PartDesign::Pad", "Pad020")
body.addObject(pad21)
pad21.Profile = sketch21
pad21.Length = 10
pad21.Reversed = True

# Sketch on XY plane
sketch22 = doc.addObject("Sketcher::SketchObject", "Sketch021")
body.addObject(sketch22)
sketch22.AttachmentSupport = (doc.XY_Plane, [""])
sketch22.MapMode = "FlatFace"
sketch22.AttachmentOffset = App.Placement(Vector(0, 0, -224.2), App.Rotation())
sketch22.addGeometry(Part.Circle(Vector(200, -33, 0), Vector(0, 0, 1), 30), False)
sketch22.addConstraint(Sketcher.Constraint("Diameter", 0, 60.0))
sketch22.addConstraint(Sketcher.Constraint("DistanceX", -1, 1, 0, 3, 200.0))
sketch22.addConstraint(Sketcher.Constraint("DistanceY", 0, 3, -1, 1, 33.193645))
pad22 = doc.addObject("PartDesign::Pad", "Pad021")
body.addObject(pad22)
pad22.Profile = sketch22
pad22.Length = 10

# Sketch on YZ plane
sketch23 = doc.addObject("Sketcher::SketchObject", "Sketch022")
body.addObject(sketch23)
sketch23.AttachmentSupport = (doc.YZ_Plane, [""])
sketch23.MapMode = "FlatFace"
sketch23.AttachmentOffset = App.Placement(Vector(0, 0, -30), App.Rotation())
sketch23.addGeometry(Part.Circle(Vector(-34, 0, 0), Vector(0, 0, 1), 30), False)
sketch23.addConstraint(Sketcher.Constraint("PointOnObject", 0, 3, -1))
sketch23.addConstraint(Sketcher.Constraint("Diameter", 0, 60.0))
sketch23.addConstraint(Sketcher.Constraint("DistanceX", 0, 3, -1, 1, 34.2))
pad23 = doc.addObject("PartDesign::Pad", "Pad022")
body.addObject(pad23)
pad23.Profile = sketch23
pad23.Length = 10

# Sketch on XY plane
sketch24 = doc.addObject("Sketcher::SketchObject", "Sketch023")
body.addObject(sketch24)
sketch24.AttachmentSupport = (doc.XY_Plane, [""])
sketch24.MapMode = "FlatFace"
sketch24.AttachmentOffset = App.Placement(Vector(0, 0, 227.2), App.Rotation())
sketch24.addGeometry(Part.Circle(Vector(200, -33, 0), Vector(0, 0, 1), 30), False)
sketch24.addConstraint(Sketcher.Constraint("Diameter", 0, 60.0))
sketch24.addConstraint(Sketcher.Constraint("DistanceX", -1, 1, 0, 3, 200.0))
sketch24.addConstraint(Sketcher.Constraint("DistanceY", 0, 3, -1, 1, 33.193645))
pad24 = doc.addObject("PartDesign::Pad", "Pad023")
body.addObject(pad24)
pad24.Profile = sketch24
pad24.Length = 10
pad24.Reversed = True

# Sketch on YZ plane
sketch25 = doc.addObject("Sketcher::SketchObject", "Sketch024")
body.addObject(sketch25)
sketch25.AttachmentSupport = (doc.YZ_Plane, [""])
sketch25.MapMode = "FlatFace"
sketch25.AttachmentOffset = App.Placement(Vector(0, 0, 430), App.Rotation())
sketch25.addGeometry(Part.Circle(Vector(-34, 0, 0), Vector(0, 0, 1), 30), False)
sketch25.addConstraint(Sketcher.Constraint("PointOnObject", 0, 3, -1))
sketch25.addConstraint(Sketcher.Constraint("Diameter", 0, 60.0))
sketch25.addConstraint(Sketcher.Constraint("DistanceX", 0, 3, -1, 1, 34.2))
pad25 = doc.addObject("PartDesign::Pad", "Pad024")
body.addObject(pad25)
pad25.Profile = sketch25
pad25.Length = 10
pad25.Reversed = True

doc.recompute()
